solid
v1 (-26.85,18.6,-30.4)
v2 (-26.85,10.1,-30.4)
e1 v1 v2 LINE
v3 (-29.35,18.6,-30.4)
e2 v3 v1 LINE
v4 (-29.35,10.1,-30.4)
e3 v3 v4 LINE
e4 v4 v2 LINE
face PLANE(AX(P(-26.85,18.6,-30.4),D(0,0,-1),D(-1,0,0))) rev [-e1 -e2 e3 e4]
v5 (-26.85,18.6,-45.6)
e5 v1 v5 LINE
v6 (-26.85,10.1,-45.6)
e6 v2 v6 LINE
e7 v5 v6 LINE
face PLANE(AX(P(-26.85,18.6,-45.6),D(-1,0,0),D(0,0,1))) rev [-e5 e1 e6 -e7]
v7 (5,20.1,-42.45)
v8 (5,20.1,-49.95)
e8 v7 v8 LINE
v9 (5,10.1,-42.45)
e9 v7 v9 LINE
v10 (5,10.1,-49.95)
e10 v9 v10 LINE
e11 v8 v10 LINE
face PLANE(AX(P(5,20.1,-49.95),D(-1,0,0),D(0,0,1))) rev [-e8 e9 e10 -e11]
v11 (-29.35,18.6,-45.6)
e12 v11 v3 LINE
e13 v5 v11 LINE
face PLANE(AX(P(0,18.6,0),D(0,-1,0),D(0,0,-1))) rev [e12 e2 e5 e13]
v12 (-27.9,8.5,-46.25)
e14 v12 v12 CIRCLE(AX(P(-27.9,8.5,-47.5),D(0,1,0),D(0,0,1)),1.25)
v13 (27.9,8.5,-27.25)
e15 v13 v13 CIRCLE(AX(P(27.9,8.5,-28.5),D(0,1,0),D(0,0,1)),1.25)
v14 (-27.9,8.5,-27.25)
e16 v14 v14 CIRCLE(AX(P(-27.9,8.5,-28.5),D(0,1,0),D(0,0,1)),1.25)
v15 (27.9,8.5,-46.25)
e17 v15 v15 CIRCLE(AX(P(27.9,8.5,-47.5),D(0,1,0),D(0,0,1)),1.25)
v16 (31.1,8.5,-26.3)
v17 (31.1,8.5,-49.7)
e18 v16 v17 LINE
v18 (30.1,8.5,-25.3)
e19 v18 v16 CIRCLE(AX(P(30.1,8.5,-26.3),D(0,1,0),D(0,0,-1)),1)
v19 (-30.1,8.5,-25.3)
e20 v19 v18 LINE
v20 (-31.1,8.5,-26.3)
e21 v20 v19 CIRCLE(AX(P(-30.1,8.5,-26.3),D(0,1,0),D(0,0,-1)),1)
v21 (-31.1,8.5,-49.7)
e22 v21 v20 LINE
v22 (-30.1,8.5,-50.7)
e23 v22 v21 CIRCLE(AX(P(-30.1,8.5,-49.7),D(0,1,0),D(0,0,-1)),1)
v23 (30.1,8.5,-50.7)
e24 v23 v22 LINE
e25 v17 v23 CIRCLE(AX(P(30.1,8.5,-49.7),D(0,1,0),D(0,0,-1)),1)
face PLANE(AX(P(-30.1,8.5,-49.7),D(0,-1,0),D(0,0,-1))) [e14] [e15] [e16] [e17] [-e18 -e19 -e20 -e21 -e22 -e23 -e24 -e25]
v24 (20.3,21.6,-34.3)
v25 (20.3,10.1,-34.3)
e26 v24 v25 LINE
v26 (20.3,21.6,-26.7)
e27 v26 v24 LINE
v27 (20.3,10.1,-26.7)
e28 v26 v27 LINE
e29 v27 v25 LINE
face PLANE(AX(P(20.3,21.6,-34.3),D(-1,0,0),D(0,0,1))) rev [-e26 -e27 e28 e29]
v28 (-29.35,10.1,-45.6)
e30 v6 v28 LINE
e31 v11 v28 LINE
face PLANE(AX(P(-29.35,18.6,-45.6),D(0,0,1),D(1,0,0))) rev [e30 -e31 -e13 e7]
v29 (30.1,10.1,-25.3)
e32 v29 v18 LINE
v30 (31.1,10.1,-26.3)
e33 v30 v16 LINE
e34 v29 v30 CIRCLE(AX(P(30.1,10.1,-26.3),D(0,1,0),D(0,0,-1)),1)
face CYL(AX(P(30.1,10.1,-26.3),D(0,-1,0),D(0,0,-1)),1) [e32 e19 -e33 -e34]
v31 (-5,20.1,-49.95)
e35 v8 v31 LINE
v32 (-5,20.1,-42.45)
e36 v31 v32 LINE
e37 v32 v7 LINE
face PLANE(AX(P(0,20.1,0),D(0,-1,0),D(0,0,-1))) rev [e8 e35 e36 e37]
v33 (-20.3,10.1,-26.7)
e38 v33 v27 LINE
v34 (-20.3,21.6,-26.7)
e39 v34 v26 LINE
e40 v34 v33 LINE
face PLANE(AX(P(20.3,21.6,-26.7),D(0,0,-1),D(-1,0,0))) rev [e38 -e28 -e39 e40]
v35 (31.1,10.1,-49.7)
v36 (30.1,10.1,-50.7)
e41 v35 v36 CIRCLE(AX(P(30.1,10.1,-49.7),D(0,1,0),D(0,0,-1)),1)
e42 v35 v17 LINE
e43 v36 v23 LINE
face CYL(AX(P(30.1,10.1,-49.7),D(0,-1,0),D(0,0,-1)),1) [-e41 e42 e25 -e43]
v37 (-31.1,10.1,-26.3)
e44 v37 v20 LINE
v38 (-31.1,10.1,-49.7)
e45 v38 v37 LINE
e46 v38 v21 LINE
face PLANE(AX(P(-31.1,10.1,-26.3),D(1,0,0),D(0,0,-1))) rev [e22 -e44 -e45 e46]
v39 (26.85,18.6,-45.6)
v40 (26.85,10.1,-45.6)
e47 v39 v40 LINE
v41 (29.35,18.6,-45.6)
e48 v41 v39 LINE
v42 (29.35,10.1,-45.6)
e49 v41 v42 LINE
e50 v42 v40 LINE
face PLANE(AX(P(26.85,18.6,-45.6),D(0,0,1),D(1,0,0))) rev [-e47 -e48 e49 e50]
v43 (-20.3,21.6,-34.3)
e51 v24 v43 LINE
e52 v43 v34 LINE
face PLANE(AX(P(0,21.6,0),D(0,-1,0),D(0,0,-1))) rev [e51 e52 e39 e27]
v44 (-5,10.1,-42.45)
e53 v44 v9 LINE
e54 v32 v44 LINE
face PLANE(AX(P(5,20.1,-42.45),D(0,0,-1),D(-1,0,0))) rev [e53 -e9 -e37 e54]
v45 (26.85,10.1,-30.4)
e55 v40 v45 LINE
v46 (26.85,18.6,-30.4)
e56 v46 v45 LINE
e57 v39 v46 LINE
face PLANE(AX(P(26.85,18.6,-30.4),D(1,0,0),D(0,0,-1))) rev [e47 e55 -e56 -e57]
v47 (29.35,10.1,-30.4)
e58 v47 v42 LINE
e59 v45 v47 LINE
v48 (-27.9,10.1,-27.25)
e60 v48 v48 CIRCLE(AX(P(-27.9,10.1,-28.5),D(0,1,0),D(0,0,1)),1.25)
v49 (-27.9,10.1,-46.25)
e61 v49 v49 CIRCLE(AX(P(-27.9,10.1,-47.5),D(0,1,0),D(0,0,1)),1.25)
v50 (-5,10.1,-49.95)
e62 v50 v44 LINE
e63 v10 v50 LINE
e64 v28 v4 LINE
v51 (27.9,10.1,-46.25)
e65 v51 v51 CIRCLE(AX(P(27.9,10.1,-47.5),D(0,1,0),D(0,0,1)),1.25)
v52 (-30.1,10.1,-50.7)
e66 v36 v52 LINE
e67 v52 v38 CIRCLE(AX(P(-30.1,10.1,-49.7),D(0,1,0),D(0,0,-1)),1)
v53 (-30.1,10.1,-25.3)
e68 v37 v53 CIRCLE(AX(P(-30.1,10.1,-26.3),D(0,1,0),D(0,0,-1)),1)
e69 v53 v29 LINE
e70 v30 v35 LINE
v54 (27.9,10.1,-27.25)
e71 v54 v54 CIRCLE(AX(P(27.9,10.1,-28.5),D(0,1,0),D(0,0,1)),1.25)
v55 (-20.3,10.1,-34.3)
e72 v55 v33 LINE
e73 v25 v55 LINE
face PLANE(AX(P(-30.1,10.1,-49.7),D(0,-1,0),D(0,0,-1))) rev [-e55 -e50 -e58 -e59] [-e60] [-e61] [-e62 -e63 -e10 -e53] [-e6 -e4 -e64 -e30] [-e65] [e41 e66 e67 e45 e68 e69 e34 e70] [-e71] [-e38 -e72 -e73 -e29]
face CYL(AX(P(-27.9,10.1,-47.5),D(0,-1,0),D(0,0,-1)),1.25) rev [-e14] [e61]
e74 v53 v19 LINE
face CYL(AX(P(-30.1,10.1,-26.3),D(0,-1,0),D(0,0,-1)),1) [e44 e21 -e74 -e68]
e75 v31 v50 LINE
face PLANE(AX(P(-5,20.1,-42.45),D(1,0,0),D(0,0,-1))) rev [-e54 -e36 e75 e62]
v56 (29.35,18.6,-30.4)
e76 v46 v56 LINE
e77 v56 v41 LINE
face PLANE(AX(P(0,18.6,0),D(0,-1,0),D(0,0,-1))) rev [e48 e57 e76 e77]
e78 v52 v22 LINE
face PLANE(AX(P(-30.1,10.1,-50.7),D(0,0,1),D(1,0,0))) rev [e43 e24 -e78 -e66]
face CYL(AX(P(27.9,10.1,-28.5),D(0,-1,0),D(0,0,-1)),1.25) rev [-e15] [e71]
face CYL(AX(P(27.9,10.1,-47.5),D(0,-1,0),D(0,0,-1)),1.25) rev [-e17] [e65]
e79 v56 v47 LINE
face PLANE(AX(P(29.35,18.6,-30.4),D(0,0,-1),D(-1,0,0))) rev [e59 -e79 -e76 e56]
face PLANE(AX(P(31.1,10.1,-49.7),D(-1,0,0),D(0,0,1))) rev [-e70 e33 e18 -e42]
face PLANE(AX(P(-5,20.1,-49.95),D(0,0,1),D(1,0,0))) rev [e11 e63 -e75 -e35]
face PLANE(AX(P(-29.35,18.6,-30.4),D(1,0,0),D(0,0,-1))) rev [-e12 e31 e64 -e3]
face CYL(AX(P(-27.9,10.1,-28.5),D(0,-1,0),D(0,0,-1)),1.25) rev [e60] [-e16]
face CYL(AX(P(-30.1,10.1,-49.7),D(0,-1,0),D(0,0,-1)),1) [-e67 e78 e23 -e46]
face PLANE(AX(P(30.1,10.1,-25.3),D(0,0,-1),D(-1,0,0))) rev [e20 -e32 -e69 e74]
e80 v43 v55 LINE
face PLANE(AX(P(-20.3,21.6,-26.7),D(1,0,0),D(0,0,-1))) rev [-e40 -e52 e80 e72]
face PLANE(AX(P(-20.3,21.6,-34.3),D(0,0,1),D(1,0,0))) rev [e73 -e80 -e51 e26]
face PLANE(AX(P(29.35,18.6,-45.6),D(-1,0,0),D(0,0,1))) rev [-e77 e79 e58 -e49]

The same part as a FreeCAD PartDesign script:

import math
import FreeCAD as App
import Part
import Sketcher


def add_polygon(sketch, points):
    """Adds a closed chain of lines whose ends are joined by coincident constraints."""
    first, n = sketch.GeometryCount, len(points)
    for a, b in zip(points, points[1:] + points[:1]):
        sketch.addGeometry(Part.LineSegment(App.Vector(*a, 0), App.Vector(*b, 0)), False)
    for i in range(n):
        sketch.addConstraint(Sketcher.Constraint("Coincident", first + i, 2, first + (i + 1) % n, 1))

doc = App.newDocument("Part")
body = doc.addObject("PartDesign::Body", "Body")

# Sketch on XZ plane
sketch1 = body.newObject("Sketcher::SketchObject", "Sketch")
sketch1.AttachmentSupport = (doc.getObject("XZ_Plane"), [""])
sketch1.MapMode = "FlatFace"
sketch1.AttachmentOffset = App.Placement(App.Vector(0, 0, -8.5), App.Rotation())
sketch1.addGeometry([
    Part.LineSegment(App.Vector(30.1, -50.7, 0), App.Vector(-30.1, -50.7, 0)),  # 0
    Part.ArcOfCircle(Part.Circle(App.Vector(-30.1, -49.7, 0), App.Vector(0, 0, 1), 1), math.radians(-180), math.radians(-90)),  # 1
    Part.LineSegment(App.Vector(-31.1, -49.7, 0), App.Vector(-31.1, -26.3, 0)),  # 2
    Part.ArcOfCircle(Part.Circle(App.Vector(-30.1, -26.3, 0), App.Vector(0, 0, 1), 1), math.radians(90), math.radians(180)),  # 3
    Part.LineSegment(App.Vector(-30.1, -25.3, 0), App.Vector(30.1, -25.3, 0)),  # 4
    Part.ArcOfCircle(Part.Circle(App.Vector(30.1, -26.3, 0), App.Vector(0, 0, 1), 1), math.radians(0), math.radians(90)),  # 5
    Part.LineSegment(App.Vector(31.1, -26.3, 0), App.Vector(31.1, -49.7, 0)),  # 6
    Part.ArcOfCircle(Part.Circle(App.Vector(30.1, -49.7, 0), App.Vector(0, 0, 1), 1), math.radians(-90), math.radians(0)),  # 7
    Part.Circle(App.Vector(27.9, -28.5, 0), App.Vector(0, 0, 1), 1.2),  # 8
    Part.Circle(App.Vector(-27.9, -28.5, 0), App.Vector(0, 0, 1), 1.2),  # 9
    Part.Circle(App.Vector(27.9, -47.5, 0), App.Vector(0, 0, 1), 1.2),  # 10
    Part.Circle(App.Vector(-27.9, -47.5, 0), App.Vector(0, 0, 1), 1.2),  # 11
], False)
sketch1.addConstraint([
    Sketcher.Constraint("Tangent", 0, 2, 1, 2),
    Sketcher.Constraint("Tangent", 1, 1, 2, 1),
    Sketcher.Constraint("Tangent", 2, 2, 3, 2),
    Sketcher.Constraint("Tangent", 3, 1, 4, 1),
    Sketcher.Constraint("Tangent", 4, 2, 5, 2),
    Sketcher.Constraint("Tangent", 5, 1, 6, 1),
    Sketcher.Constraint("Tangent", 6, 2, 7, 2),
    Sketcher.Constraint("Tangent", 7, 1, 0, 1),
    Sketcher.Constraint("Horizontal", 0),
    Sketcher.Constraint("Vertical", 2),
    Sketcher.Constraint("Horizontal", 4),
    Sketcher.Constraint("Vertical", 6),
    Sketcher.Constraint("Equal", 1, 3),
    Sketcher.Constraint("Equal", 3, 5),
    Sketcher.Constraint("Equal", 5, 7),
    Sketcher.Constraint("Equal", 8, 9),
    Sketcher.Constraint("Equal", 9, 10),
    Sketcher.Constraint("Equal", 10, 11),
    Sketcher.Constraint("Symmetric", 8, 3, 9, 3, -2),
    Sketcher.Constraint("Symmetric", 10, 3, 11, 3, -2),
    Sketcher.Constraint("Vertical", 8, 3, 10, 3),
    Sketcher.Constraint("Radius", 1, 1.0),
    Sketcher.Constraint("Diameter", 8, 2.5),
    Sketcher.Constraint("DistanceX", 0, 2, 0, 1, 60.2),
    Sketcher.Constraint("DistanceY", 2, 1, 2, 2, 23.4),
    Sketcher.Constraint("DistanceX", 3, 3, 8, 3, 58.0),
    Sketcher.Constraint("DistanceX", 9, 3, 5, 3, 58.0),
    Sketcher.Constraint("DistanceY", 10, 3, 8, 3, 19.0),
    Sketcher.Constraint("DistanceY", 1, 3, -1, 1, 49.7),
    Sketcher.Constraint("DistanceY", 8, 3, -1, 1, 28.5),
])
pad1 = body.newObject("PartDesign::Pad", "Pad")
pad1.Profile = sketch1
pad1.Length = 1.6
pad1.Reversed = True

# Sketch on XZ plane
sketch2 = body.newObject("Sketcher::SketchObject", "Sketch001")
sketch2.AttachmentSupport = (doc.getObject("XZ_Plane"), [""])
sketch2.MapMode = "FlatFace"
sketch2.AttachmentOffset = App.Placement(App.Vector(0, 0, -10.1), App.Rotation())
add_polygon(sketch2, [(-20, -34), (-20, -27), (20, -27), (20, -34)])  # lines 0-3
sketch2.addConstraint([
    Sketcher.Constraint("Vertical", 0),
    Sketcher.Constraint("Horizontal", 1),
    Sketcher.Constraint("Vertical", 2),
    Sketcher.Constraint("Horizontal", 3),
    Sketcher.Constraint("DistanceX", 1, 1, 1, 2, 40.6),
    Sketcher.Constraint("DistanceY", 0, 1, 0, 2, 7.6),
    Sketcher.Constraint("DistanceX", 0, 2, -1, 1, 20.3),
    Sketcher.Constraint("DistanceY", 0, 2, -1, 1, 26.7),
])
pad2 = body.newObject("PartDesign::Pad", "Pad001")
pad2.Profile = sketch2
pad2.Length = 11.5
pad2.Reversed = True

# Sketch on XZ plane
sketch3 = body.newObject("Sketcher::SketchObject", "Sketch002")
sketch3.AttachmentSupport = (doc.getObject("XZ_Plane"), [""])
sketch3.MapMode = "FlatFace"
sketch3.AttachmentOffset = App.Placement(App.Vector(0, 0, -10.1), App.Rotation())
add_polygon(sketch3, [(-5, -50), (-5, -42), (5, -42), (5, -50)])  # lines 0-3
sketch3.addConstraint([
    Sketcher.Constraint("Vertical", 0),
    Sketcher.Constraint("Horizontal", 1),
    Sketcher.Constraint("Vertical", 2),
    Sketcher.Constraint("Horizontal", 3),
    Sketcher.Constraint("DistanceX", 1, 1, 1, 2, 10.0),
    Sketcher.Constraint("DistanceY", 0, 1, 0, 2, 7.5),
    Sketcher.Constraint("DistanceX", 0, 2, -1, 1, 5.0),
    Sketcher.Constraint("DistanceY", 0, 2, -1, 1, 42.45),
])
pad3 = body.newObject("PartDesign::Pad", "Pad002")
pad3.Profile = sketch3
pad3.Length = 10
pad3.Reversed = True

# Sketch on XZ plane
sketch4 = body.newObject("Sketcher::SketchObject", "Sketch003")
sketch4.AttachmentSupport = (doc.getObject("XZ_Plane"), [""])
sketch4.MapMode = "FlatFace"
sketch4.AttachmentOffset = App.Placement(App.Vector(0, 0, -10.1), App.Rotation())
add_polygon(sketch4, [(-29.4, -45.6), (-29.4, -30.4), (-26.9, -30.4), (-26.9, -45.6)])  # lines 0-3
add_polygon(sketch4, [(26.9, -45.6), (26.9, -30.4), (29.4, -30.4), (29.4, -45.6)])  # lines 4-7
sketch4.addConstraint([
    Sketcher.Constraint("Vertical", 0),
    Sketcher.Constraint("Horizontal", 1),
    Sketcher.Constraint("Vertical", 2),
    Sketcher.Constraint("Horizontal", 3),
    Sketcher.Constraint("Vertical", 4),
    Sketcher.Constraint("Horizontal", 5),
    Sketcher.Constraint("Vertical", 6),
    Sketcher.Constraint("Horizontal", 7),
    Sketcher.Constraint("Symmetric", 1, 2, 4, 2, -2),
    Sketcher.Constraint("Symmetric", 3, 2, 6, 2, -2),
    Sketcher.Constraint("DistanceX", 1, 1, 1, 2, 2.5),
    Sketcher.Constraint("DistanceY", 0, 1, 0, 2, 15.2),
    Sketcher.Constraint("DistanceY", 0, 2, -1, 1, 30.4),
    Sketcher.Constraint("DistanceX", 1, 2, 4, 2, 53.7),
])
pad4 = body.newObject("PartDesign::Pad", "Pad003")
pad4.Profile = sketch4
pad4.Length = 8.5
pad4.Reversed = True

doc.recompute()
